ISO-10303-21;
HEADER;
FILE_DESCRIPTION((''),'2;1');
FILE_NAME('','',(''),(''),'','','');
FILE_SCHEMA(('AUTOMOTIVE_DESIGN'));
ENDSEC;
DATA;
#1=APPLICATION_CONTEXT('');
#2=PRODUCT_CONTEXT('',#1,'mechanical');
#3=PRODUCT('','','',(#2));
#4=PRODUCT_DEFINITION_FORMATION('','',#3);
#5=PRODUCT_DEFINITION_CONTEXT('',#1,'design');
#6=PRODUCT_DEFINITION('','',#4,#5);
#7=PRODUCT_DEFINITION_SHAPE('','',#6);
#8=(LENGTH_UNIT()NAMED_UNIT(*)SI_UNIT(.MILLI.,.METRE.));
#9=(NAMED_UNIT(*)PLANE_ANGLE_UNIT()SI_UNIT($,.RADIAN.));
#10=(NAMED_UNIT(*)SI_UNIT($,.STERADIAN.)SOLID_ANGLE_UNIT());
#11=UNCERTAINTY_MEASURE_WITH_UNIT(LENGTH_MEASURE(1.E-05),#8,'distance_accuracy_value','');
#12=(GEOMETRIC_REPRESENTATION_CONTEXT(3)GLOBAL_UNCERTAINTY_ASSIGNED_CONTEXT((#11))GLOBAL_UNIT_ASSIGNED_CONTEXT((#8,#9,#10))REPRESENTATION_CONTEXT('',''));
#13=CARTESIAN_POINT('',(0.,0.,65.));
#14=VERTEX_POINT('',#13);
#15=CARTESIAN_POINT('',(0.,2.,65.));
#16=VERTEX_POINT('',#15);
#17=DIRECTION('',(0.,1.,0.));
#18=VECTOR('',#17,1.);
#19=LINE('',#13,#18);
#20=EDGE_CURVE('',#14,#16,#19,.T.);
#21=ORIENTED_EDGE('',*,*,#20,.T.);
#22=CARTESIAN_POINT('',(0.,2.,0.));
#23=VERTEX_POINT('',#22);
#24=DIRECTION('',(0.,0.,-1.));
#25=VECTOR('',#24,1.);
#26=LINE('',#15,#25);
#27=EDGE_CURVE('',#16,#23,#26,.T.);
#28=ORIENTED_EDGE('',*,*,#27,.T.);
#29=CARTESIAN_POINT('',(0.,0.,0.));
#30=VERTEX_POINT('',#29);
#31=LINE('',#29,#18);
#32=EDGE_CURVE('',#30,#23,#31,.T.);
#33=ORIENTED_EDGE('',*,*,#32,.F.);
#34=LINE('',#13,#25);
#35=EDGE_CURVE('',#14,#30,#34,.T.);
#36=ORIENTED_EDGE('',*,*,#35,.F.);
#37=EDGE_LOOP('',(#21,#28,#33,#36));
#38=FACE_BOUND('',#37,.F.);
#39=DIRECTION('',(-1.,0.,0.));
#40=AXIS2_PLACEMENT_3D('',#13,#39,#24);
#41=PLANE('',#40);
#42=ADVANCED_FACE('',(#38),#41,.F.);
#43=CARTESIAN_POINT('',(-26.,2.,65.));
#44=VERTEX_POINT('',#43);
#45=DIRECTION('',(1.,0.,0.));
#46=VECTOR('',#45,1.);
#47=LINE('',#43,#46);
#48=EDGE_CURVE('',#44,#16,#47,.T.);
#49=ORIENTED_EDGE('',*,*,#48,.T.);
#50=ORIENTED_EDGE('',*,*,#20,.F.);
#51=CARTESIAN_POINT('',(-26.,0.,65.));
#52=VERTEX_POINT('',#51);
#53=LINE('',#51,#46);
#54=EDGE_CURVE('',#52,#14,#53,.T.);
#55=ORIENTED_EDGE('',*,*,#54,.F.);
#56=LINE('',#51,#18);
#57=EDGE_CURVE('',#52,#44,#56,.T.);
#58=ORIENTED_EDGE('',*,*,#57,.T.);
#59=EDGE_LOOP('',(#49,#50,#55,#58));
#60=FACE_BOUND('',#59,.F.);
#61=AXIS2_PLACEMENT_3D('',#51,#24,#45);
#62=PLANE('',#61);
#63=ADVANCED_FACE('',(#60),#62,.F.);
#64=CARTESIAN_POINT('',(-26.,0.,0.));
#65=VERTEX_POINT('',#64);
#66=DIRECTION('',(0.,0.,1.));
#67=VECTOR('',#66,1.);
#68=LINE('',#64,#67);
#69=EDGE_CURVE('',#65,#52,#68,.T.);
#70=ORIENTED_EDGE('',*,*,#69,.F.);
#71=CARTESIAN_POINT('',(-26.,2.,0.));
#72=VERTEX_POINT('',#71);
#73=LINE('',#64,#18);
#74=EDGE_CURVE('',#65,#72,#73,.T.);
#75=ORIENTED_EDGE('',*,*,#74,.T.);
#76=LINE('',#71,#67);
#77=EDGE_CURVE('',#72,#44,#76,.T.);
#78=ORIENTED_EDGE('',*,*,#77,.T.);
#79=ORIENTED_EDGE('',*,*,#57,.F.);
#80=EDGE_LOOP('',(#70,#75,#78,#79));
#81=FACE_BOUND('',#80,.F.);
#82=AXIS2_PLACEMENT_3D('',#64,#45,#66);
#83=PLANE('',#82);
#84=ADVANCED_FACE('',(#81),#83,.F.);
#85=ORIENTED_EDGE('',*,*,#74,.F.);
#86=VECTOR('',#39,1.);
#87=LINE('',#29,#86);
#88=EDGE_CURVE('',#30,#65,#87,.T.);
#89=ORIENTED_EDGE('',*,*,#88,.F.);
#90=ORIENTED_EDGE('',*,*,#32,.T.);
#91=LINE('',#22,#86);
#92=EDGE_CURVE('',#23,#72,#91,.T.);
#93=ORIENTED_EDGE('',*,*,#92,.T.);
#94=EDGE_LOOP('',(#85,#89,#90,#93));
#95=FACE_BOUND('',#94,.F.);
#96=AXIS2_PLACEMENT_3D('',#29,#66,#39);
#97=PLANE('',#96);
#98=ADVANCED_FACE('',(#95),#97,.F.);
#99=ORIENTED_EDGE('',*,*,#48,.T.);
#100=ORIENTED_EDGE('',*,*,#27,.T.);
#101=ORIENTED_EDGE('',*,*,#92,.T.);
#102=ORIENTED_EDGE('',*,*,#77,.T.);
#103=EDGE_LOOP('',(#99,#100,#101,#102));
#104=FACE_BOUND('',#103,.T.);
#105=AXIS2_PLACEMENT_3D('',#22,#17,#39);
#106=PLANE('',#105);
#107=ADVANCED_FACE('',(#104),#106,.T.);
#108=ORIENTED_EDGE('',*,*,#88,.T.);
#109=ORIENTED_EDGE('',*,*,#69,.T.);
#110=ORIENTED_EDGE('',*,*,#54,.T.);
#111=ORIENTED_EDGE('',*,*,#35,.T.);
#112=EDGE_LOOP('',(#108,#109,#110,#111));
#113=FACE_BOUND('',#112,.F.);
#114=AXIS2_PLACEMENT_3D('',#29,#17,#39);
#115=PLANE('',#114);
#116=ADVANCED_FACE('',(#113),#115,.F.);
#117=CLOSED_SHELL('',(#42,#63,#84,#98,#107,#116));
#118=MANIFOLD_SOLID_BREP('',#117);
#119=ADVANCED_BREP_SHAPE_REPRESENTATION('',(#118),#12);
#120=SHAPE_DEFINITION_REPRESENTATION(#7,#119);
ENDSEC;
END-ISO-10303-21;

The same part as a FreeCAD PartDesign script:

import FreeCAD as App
import Part
import Sketcher
from FreeCAD import Vector
Q = App.Units.Quantity

doc = App.newDocument("Part")
body = doc.addObject("PartDesign::Body", "Body")

sketch1 = body.newObject("Sketcher::SketchObject", "Sketch")
sketch1.AttachmentSupport = (doc.getObject("XZ_Plane"), [""])
sketch1.MapMode = "FlatFace"
sketch1.addGeometry([
    Part.LineSegment(Vector(0, 65, 0), Vector(0, 0, 0)),
    Part.LineSegment(Vector(0, 0, 0), Vector(-26, 0, 0)),
    Part.LineSegment(Vector(-26, 0, 0), Vector(-26, 65, 0)),
    Part.LineSegment(Vector(-26, 65, 0), Vector(0, 65, 0)),
], False)
sketch1.addConstraint([
    Sketcher.Constraint("Coincident", 0, 2, 1, 1),
    Sketcher.Constraint("Coincident", 1, 2, 2, 1),
    Sketcher.Constraint("Coincident", 2, 2, 3, 1),
    Sketcher.Constraint("Coincident", 3, 2, 0, 1),
    Sketcher.Constraint("Vertical", 0),
    Sketcher.Constraint("Horizontal", 1),
    Sketcher.Constraint("Vertical", 2),
    Sketcher.Constraint("Horizontal", 3),
    Sketcher.Constraint("Coincident", 0, 2, -1, 1),
    Sketcher.Constraint("DistanceX", 1, 2, 1, 1, Q("26 mm")),
    Sketcher.Constraint("DistanceY", 0, 2, 0, 1, Q("65 mm")),
])
pad1 = body.newObject("PartDesign::Pad", "Pad")
pad1.Profile = sketch1
pad1.Length = 2
pad1.Reversed = True

doc.recompute()
